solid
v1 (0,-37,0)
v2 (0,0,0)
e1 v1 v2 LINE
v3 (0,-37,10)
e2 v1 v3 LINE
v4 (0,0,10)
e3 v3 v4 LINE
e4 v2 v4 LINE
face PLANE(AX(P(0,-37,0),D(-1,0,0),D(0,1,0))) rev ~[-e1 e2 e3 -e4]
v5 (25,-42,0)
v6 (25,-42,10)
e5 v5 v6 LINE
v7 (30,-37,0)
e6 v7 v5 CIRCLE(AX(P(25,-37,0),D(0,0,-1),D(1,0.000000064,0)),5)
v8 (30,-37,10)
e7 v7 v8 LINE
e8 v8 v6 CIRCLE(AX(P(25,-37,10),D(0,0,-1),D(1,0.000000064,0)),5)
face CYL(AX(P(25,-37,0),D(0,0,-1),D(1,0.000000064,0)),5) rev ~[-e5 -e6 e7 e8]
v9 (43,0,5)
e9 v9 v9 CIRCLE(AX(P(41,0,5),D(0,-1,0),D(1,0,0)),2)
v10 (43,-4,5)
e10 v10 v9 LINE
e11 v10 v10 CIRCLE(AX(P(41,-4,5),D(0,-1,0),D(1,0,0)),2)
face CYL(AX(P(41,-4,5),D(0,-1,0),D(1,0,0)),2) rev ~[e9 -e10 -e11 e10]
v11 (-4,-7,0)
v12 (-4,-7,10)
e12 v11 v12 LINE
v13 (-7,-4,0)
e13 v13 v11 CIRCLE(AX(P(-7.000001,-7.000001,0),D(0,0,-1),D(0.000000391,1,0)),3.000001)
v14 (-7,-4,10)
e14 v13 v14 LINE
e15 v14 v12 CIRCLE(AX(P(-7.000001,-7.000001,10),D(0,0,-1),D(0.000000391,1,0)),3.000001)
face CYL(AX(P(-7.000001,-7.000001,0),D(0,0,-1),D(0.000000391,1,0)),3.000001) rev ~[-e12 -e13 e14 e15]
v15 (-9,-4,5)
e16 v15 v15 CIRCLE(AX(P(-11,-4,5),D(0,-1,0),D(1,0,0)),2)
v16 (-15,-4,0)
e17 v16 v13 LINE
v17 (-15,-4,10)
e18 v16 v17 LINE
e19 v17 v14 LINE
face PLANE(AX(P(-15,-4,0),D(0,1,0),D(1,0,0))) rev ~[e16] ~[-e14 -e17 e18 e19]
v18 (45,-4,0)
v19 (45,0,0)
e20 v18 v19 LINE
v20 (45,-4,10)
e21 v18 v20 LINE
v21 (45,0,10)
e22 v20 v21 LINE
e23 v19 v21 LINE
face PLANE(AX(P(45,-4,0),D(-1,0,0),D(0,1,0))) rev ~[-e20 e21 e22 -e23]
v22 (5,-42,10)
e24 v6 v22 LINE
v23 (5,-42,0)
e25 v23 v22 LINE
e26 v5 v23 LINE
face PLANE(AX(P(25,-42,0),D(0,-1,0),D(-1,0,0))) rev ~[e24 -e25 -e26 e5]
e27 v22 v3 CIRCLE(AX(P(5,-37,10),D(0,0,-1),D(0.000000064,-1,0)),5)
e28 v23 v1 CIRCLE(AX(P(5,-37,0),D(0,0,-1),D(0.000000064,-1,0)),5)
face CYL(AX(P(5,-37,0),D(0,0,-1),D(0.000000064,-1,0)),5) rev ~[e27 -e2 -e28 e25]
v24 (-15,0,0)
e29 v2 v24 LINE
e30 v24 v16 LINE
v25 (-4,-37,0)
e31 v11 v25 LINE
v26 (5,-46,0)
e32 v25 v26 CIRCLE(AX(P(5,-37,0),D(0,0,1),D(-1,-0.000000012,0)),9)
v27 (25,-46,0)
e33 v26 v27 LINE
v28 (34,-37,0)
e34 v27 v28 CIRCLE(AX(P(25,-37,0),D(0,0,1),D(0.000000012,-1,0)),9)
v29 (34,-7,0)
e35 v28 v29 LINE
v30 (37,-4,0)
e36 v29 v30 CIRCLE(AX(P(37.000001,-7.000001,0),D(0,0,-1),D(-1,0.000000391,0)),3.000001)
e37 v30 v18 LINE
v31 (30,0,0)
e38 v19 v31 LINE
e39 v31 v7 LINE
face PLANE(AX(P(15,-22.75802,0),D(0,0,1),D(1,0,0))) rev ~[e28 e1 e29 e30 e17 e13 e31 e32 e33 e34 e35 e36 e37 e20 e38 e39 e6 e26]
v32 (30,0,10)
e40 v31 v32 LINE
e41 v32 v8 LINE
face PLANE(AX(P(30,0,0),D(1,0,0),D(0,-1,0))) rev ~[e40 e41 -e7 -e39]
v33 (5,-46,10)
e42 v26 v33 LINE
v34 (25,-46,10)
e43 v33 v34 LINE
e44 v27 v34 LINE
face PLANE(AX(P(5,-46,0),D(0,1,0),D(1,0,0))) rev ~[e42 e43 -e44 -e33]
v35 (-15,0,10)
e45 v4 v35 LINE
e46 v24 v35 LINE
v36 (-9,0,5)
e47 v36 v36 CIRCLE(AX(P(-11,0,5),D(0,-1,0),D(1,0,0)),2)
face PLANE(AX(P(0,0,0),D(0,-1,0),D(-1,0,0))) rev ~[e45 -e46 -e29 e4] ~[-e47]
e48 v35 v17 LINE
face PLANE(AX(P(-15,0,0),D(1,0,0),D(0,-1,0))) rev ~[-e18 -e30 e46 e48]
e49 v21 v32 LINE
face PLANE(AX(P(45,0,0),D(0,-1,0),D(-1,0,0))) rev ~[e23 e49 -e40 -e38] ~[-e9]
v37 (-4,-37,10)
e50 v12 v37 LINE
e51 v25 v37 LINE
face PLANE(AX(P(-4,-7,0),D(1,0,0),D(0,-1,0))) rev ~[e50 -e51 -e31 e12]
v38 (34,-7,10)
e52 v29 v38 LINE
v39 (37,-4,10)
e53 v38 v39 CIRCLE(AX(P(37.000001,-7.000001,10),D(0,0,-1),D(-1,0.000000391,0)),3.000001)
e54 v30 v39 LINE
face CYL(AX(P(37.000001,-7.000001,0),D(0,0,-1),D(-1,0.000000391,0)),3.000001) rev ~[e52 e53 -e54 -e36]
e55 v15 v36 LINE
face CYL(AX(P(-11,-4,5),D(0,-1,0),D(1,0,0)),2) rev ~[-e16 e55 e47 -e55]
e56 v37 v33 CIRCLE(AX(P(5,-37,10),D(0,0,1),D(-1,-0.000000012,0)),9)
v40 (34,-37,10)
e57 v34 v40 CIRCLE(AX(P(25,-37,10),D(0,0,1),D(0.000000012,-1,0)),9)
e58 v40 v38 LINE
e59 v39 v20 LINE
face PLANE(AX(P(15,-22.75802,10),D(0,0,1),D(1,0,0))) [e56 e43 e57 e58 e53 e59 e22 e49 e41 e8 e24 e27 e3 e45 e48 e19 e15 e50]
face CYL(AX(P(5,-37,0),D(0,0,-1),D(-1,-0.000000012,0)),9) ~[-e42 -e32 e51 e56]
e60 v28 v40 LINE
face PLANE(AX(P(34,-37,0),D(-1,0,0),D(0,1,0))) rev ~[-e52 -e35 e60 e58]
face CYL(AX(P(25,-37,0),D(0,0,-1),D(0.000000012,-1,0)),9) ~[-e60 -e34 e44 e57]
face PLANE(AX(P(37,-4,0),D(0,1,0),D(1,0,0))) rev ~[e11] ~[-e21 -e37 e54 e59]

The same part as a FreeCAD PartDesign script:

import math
import FreeCAD as App
import Part
import Sketcher
from FreeCAD import Vector
Q = App.Units.Quantity

doc = App.newDocument("Part")
body = doc.addObject("PartDesign::Body", "Body")

sketch1 = body.newObject("Sketcher::SketchObject", "Sketch")
sketch1.AttachmentSupport = (doc.getObject("XY_Plane"), [""])
sketch1.MapMode = "FlatFace"
sketch1.addGeometry([
    Part.LineSegment(Vector(0, -37, 0), Vector(0, 0, 0)),
    Part.LineSegment(Vector(0, 0, 0), Vector(-15, 0, 0)),
    Part.LineSegment(Vector(-15, 0, 0), Vector(-15, -4, 0)),
    Part.LineSegment(Vector(-15, -4, 0), Vector(-7, -4, 0)),
    Part.ArcOfCircle(Part.Circle(Vector(-7, -7, 0), Vector(0, 0, 1), 3), math.radians(0), math.radians(90)),
    Part.LineSegment(Vector(-4, -7, 0), Vector(-4, -37, 0)),
    Part.ArcOfCircle(Part.Circle(Vector(5, -37, 0), Vector(0, 0, 1), 9), math.radians(-180), math.radians(-90)),
    Part.LineSegment(Vector(5, -46, 0), Vector(25, -46, 0)),
    Part.ArcOfCircle(Part.Circle(Vector(25, -37, 0), Vector(0, 0, 1), 9), math.radians(-90), math.radians(0)),
    Part.LineSegment(Vector(34, -37, 0), Vector(34, -7, 0)),
    Part.ArcOfCircle(Part.Circle(Vector(37, -7, 0), Vector(0, 0, 1), 3), math.radians(90), math.radians(180)),
    Part.LineSegment(Vector(37, -4, 0), Vector(45, -4, 0)),
    Part.LineSegment(Vector(45, -4, 0), Vector(45, 0, 0)),
    Part.LineSegment(Vector(45, 0, 0), Vector(30, 0, 0)),
    Part.LineSegment(Vector(30, 0, 0), Vector(30, -37, 0)),
    Part.ArcOfCircle(Part.Circle(Vector(25, -37, 0), Vector(0, 0, 1), 5), math.radians(-90), math.radians(0)),
    Part.LineSegment(Vector(25, -42, 0), Vector(5, -42, 0)),
    Part.ArcOfCircle(Part.Circle(Vector(5, -37, 0), Vector(0, 0, 1), 5), math.radians(180), math.radians(270)),
], False)
sketch1.addConstraint([
    Sketcher.Constraint("Coincident", 0, 2, 1, 1),
    Sketcher.Constraint("Coincident", 1, 2, 2, 1),
    Sketcher.Constraint("Coincident", 2, 2, 3, 1),
    Sketcher.Constraint("Tangent", 3, 2, 4, 2),
    Sketcher.Constraint("Tangent", 4, 1, 5, 1),
    Sketcher.Constraint("Tangent", 5, 2, 6, 1),
    Sketcher.Constraint("Tangent", 6, 2, 7, 1),
    Sketcher.Constraint("Tangent", 7, 2, 8, 1),
    Sketcher.Constraint("Tangent", 8, 2, 9, 1),
    Sketcher.Constraint("Tangent", 9, 2, 10, 2),
    Sketcher.Constraint("Tangent", 10, 1, 11, 1),
    Sketcher.Constraint("Coincident", 11, 2, 12, 1),
    Sketcher.Constraint("Coincident", 12, 2, 13, 1),
    Sketcher.Constraint("Coincident", 13, 2, 14, 1),
    Sketcher.Constraint("Tangent", 14, 2, 15, 2),
    Sketcher.Constraint("Tangent", 15, 1, 16, 1),
    Sketcher.Constraint("Tangent", 16, 2, 17, 2),
    Sketcher.Constraint("Tangent", 17, 1, 0, 1),
    Sketcher.Constraint("Vertical", 0),
    Sketcher.Constraint("Horizontal", 1),
    Sketcher.Constraint("Vertical", 2),
    Sketcher.Constraint("Horizontal", 3),
    Sketcher.Constraint("Vertical", 5),
    Sketcher.Constraint("Horizontal", 7),
    Sketcher.Constraint("Vertical", 9),
    Sketcher.Constraint("Horizontal", 11),
    Sketcher.Constraint("Vertical", 12),
    Sketcher.Constraint("Horizontal", 13),
    Sketcher.Constraint("Vertical", 14),
    Sketcher.Constraint("Horizontal", 16),
    Sketcher.Constraint("Coincident", 0, 2, -1, 1),
    Sketcher.Constraint("Coincident", 15, 3, 8, 3),
    Sketcher.Constraint("Coincident", 17, 3, 6, 3),
    Sketcher.Constraint("Equal", 6, 8),
    Sketcher.Constraint("Equal", 4, 10),
    Sketcher.Constraint("PointOnObject", 12, 2, -1),
    Sketcher.Constraint("Horizontal", 4, 3, 10, 3),
    Sketcher.Constraint("Equal", 3, 11),
    Sketcher.Constraint("Radius", 4, Q("3.000001 mm")),
    Sketcher.Constraint("Radius", 6, Q("9 mm")),
    Sketcher.Constraint("Radius", 15, Q("5 mm")),
    Sketcher.Constraint("DistanceX", 1, 2, 1, 1, Q("15 mm")),
    Sketcher.Constraint("DistanceX", 7, 1, 7, 2, Q("20 mm")),
    Sketcher.Constraint("DistanceY", 0, 1, 0, 2, Q("37 mm")),
    Sketcher.Constraint("DistanceY", 2, 2, 2, 1, Q("4 mm")),
])
pad1 = body.newObject("PartDesign::Pad", "Pad")
pad1.Profile = sketch1
pad1.Length = 10

sketch2 = body.newObject("Sketcher::SketchObject", "Sketch001")
sketch2.AttachmentSupport = (doc.getObject("XZ_Plane"), [""])
sketch2.MapMode = "FlatFace"
sketch2.AttachmentOffset = App.Placement(Vector(0, 0, 4), App.Rotation())
sketch2.addGeometry([
    Part.Circle(Vector(-11, 5, 0), Vector(0, 0, 1), 2),
    Part.Circle(Vector(41, 5, 0), Vector(0, 0, 1), 2),
], False)
sketch2.addConstraint([
    Sketcher.Constraint("Equal", 0, 1),
    Sketcher.Constraint("Horizontal", 0, 3, 1, 3),
    Sketcher.Constraint("Diameter", 0, Q("4 mm")),
    Sketcher.Constraint("DistanceX", 0, 3, -1, 1, Q("11 mm")),
    Sketcher.Constraint("DistanceY", -1, 1, 0, 3, Q("5 mm")),
    Sketcher.Constraint("DistanceX", -1, 1, 1, 3, Q("41 mm")),
])
pocket1 = body.newObject("PartDesign::Pocket", "Pocket")
pocket1.Profile = sketch2
pocket1.Length = 4

doc.recompute()
